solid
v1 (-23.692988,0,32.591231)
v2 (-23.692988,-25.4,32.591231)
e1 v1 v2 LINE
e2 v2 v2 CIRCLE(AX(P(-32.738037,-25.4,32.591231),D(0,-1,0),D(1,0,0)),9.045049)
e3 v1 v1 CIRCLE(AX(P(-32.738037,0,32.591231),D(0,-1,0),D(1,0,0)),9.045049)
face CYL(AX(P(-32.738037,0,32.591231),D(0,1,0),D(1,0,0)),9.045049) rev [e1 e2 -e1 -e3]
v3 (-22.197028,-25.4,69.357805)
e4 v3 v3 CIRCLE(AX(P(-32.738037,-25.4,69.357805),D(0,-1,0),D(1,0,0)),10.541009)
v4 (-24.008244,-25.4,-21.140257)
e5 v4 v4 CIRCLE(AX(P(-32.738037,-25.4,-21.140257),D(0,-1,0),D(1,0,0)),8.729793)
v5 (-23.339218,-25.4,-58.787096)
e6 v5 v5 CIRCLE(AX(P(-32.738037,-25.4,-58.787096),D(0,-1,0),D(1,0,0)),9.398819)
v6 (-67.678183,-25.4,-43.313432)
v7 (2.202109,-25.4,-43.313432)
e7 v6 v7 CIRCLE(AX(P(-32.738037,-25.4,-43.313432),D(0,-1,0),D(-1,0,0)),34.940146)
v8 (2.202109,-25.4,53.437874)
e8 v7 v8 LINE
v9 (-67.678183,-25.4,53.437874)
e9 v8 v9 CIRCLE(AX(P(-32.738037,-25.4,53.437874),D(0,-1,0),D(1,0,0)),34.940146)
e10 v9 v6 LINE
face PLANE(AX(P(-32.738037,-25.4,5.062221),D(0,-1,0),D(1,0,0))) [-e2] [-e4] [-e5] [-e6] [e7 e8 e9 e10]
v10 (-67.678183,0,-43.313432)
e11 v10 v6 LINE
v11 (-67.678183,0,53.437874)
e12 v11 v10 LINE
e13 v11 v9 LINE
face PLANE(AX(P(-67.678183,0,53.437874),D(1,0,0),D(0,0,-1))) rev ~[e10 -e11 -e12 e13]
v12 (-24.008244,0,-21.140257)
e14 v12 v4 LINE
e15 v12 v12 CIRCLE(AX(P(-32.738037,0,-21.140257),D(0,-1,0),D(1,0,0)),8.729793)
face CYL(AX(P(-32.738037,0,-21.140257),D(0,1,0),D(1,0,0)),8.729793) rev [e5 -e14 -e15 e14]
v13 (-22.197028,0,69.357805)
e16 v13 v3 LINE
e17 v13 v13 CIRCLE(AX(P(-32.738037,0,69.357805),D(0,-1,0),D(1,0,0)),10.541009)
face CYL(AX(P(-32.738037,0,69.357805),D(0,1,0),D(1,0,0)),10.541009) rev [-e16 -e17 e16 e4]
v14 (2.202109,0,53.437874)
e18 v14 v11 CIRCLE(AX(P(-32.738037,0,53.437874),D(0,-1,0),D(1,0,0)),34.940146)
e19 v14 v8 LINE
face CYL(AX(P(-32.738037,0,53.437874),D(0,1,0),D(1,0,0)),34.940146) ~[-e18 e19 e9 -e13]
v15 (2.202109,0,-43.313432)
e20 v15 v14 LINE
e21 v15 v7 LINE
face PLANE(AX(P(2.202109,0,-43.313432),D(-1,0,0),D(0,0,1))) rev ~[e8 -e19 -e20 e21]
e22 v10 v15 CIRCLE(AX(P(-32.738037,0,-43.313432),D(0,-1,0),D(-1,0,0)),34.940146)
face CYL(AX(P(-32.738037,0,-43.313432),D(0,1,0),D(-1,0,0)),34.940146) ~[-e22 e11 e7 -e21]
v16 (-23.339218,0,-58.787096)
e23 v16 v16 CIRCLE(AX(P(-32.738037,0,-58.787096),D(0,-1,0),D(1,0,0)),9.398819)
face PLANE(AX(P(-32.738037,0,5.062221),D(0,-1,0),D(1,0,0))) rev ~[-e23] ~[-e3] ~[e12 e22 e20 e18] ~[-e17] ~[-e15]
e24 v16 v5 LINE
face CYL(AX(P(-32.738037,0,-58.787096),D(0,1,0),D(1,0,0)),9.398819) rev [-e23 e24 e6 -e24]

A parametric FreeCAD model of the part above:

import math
import FreeCAD as App
import Part
import Sketcher
from FreeCAD import Vector
Q = App.Units.Quantity

doc = App.newDocument("Part")
body = doc.addObject("PartDesign::Body", "Body")

sketch1 = body.newObject("Sketcher::SketchObject", "Sketch")
sketch1.AttachmentSupport = (doc.getObject("XZ_Plane"), [""])
sketch1.MapMode = "FlatFace"
sketch1.addGeometry([
    Part.ArcOfCircle(Part.Circle(Vector(-33, 53, 0), Vector(0, 0, 1), 35), math.radians(0), math.radians(180)),
    Part.LineSegment(Vector(-68, 53, 0), Vector(-68, -43, 0)),
    Part.ArcOfCircle(Part.Circle(Vector(-33, -43, 0), Vector(0, 0, 1), 35), math.radians(180), math.radians(360)),
    Part.LineSegment(Vector(2, -43, 0), Vector(2, 53, 0)),
    Part.Circle(Vector(-33, -59, 0), Vector(0, 0, 1), 9),
    Part.Circle(Vector(-33, -21, 0), Vector(0, 0, 1), 9),
    Part.Circle(Vector(-33, 33, 0), Vector(0, 0, 1), 9),
    Part.Circle(Vector(-33, 69, 0), Vector(0, 0, 1), 11),
], False)
sketch1.addConstraint([
    Sketcher.Constraint("Tangent", 0, 2, 1, 1),
    Sketcher.Constraint("Tangent", 1, 2, 2, 1),
    Sketcher.Constraint("Tangent", 2, 2, 3, 1),
    Sketcher.Constraint("Tangent", 3, 2, 0, 1),
    Sketcher.Constraint("Vertical", 1),
    Sketcher.Constraint("Vertical", 3),
    Sketcher.Constraint("Vertical", 2, 3, 4, 3),
    Sketcher.Constraint("Vertical", 4, 3, 5, 3),
    Sketcher.Constraint("Vertical", 5, 3, 6, 3),
    Sketcher.Constraint("Vertical", 6, 3, 7, 3),
    Sketcher.Constraint("Diameter", 6, 18.090098),
    Sketcher.Constraint("Diameter", 7, 21.082018),
    Sketcher.Constraint("Diameter", 4, 18.797638),
    Sketcher.Constraint("Diameter", 5, 17.459586),
    Sketcher.Constraint("Radius", 0, 34.940146),
    Sketcher.Constraint("DistanceY", 4, 3, 7, 3, 128.144901),
    Sketcher.Constraint("DistanceY", 1, 2, 1, 1, 96.751306),
    Sketcher.Constraint("DistanceY", -1, 1, 6, 3, 32.591231),
    Sketcher.Constraint("DistanceX", -1, 1, 2, 2, 2.202109),
    Sketcher.Constraint("DistanceY", 4, 3, 0, 3, 112.22497),
    Sketcher.Constraint("DistanceY", 4, 3, 5, 3, 37.646839),
    Sketcher.Constraint("DistanceY", -1, 1, 0, 3, 53.437874),
])
pad1 = body.newObject("PartDesign::Pad", "Pad")
pad1.Profile = sketch1
pad1.Length = Q("1 in")

doc.recompute()
